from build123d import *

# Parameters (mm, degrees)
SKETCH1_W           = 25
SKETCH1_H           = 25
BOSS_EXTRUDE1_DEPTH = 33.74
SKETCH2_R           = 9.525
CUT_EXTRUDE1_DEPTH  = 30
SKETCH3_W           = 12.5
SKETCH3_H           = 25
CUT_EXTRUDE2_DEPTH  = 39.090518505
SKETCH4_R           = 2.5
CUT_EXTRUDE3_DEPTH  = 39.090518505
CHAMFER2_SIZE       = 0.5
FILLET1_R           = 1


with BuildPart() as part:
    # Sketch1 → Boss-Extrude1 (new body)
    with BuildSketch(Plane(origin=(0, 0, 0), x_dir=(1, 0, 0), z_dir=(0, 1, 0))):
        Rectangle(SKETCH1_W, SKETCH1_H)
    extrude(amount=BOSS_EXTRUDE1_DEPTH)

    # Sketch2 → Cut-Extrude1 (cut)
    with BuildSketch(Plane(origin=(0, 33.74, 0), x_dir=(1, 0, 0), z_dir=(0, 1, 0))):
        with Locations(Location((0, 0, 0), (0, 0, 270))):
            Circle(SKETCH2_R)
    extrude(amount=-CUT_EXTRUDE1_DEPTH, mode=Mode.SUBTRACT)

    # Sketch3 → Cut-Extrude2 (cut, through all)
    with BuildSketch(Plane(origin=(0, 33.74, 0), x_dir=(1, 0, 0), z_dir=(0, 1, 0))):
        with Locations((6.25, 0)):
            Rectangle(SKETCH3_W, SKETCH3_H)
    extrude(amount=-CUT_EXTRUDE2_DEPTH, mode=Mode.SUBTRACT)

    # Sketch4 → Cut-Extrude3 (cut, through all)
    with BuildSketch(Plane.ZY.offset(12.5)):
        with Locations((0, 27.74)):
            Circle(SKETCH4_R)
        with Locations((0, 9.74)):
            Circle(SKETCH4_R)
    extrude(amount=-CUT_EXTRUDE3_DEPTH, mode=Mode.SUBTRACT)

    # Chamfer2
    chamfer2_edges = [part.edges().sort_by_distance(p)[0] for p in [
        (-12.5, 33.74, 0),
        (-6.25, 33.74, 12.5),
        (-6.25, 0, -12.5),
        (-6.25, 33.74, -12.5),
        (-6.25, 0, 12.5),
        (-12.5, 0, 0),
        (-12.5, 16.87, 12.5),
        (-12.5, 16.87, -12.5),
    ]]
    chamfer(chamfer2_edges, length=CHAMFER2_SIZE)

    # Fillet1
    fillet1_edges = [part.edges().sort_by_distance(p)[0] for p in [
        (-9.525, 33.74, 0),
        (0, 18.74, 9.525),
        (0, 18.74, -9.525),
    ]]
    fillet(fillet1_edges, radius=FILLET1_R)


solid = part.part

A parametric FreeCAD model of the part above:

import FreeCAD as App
import Part
import Sketcher
Q = App.Units.Quantity


def edges_at(feature, points):
    """Names of the edges that pass closest to the given points."""
    edges = feature.Shape.Edges
    near = lambda p: min(range(len(edges)), key=lambda i: edges[i].distToShape(Part.Vertex(*p))[0])
    return sorted({f"Edge{near(p) + 1}" for p in points})


def add_polygon(sketch, points):
    """Adds a closed chain of lines whose ends are joined by coincident constraints."""
    first, n = sketch.GeometryCount, len(points)
    for a, b in zip(points, points[1:] + points[:1]):
        sketch.addGeometry(Part.LineSegment(App.Vector(*a, 0), App.Vector(*b, 0)), False)
    for i in range(n):
        sketch.addConstraint(Sketcher.Constraint("Coincident", first + i, 2, first + (i + 1) % n, 1))

doc = App.newDocument("Part")
body = doc.addObject("PartDesign::Body", "Body")

# Sketch on XZ plane
sketch1 = body.newObject("Sketcher::SketchObject", "Sketch")
sketch1.AttachmentSupport = (doc.getObject("XZ_Plane"), [""])
sketch1.MapMode = "FlatFace"
add_polygon(sketch1, [(-12, -12), (-12, 12), (12, 12), (12, -12)])  # lines 0-3
sketch1.addConstraint([
    Sketcher.Constraint("Vertical", 0),
    Sketcher.Constraint("Horizontal", 1),
    Sketcher.Constraint("Vertical", 2),
    Sketcher.Constraint("Horizontal", 3),
    Sketcher.Constraint("Symmetric", 0, 2, 2, 2, -1, 1),
    Sketcher.Constraint("Equal", 3, 0),
    Sketcher.Constraint("DistanceX", 1, 1, 1, 2, Q("25 mm")),
])
pad1 = body.newObject("PartDesign::Pad", "Pad")
pad1.Profile = sketch1
pad1.Length = 33.74
pad1.Reversed = True

# Sketch on XZ plane
sketch2 = body.newObject("Sketcher::SketchObject", "Sketch001")
sketch2.AttachmentSupport = (doc.getObject("XZ_Plane"), [""])
sketch2.MapMode = "FlatFace"
sketch2.AttachmentOffset = App.Placement(App.Vector(0, 0, -33.74), App.Rotation())
sketch2.addGeometry(Part.Circle(App.Vector(0, 0, 0), App.Vector(0, 0, 1), 10), False)
sketch2.addConstraint([
    Sketcher.Constraint("Coincident", 0, 3, -1, 1),
    Sketcher.Constraint("Diameter", 0, Q("19.05 mm")),
])
pocket1 = body.newObject("PartDesign::Pocket", "Pocket")
pocket1.Profile = sketch2
pocket1.Length = 30
pocket1.Reversed = True

# Sketch on XZ plane
sketch3 = body.newObject("Sketcher::SketchObject", "Sketch002")
sketch3.AttachmentSupport = (doc.getObject("XZ_Plane"), [""])
sketch3.MapMode = "FlatFace"
sketch3.AttachmentOffset = App.Placement(App.Vector(0, 0, -33.74), App.Rotation())
add_polygon(sketch3, [(0, -12), (0, 12), (12, 12), (12, -12)])  # lines 0-3
sketch3.addConstraint([
    Sketcher.Constraint("Vertical", 0),
    Sketcher.Constraint("Horizontal", 1),
    Sketcher.Constraint("Vertical", 2),
    Sketcher.Constraint("Horizontal", 3),
    Sketcher.Constraint("Symmetric", 0, 2, 3, 2, -1, 1),
    Sketcher.Constraint("DistanceY", 0, 1, 0, 2, Q("25 mm")),
    Sketcher.Constraint("DistanceX", 1, 1, 1, 2, Q("12.5 mm")),
])
pocket2 = body.newObject("PartDesign::Pocket", "Pocket001")
pocket2.Profile = sketch3
pocket2.Type = "ThroughAll"
pocket2.Reversed = True

# Sketch on YZ plane
sketch4 = body.newObject("Sketcher::SketchObject", "Sketch003")
sketch4.AttachmentSupport = (doc.getObject("YZ_Plane"), [""])
sketch4.MapMode = "FlatFace"
sketch4.AttachmentOffset = App.Placement(App.Vector(0, 0, -12.5), App.Rotation())
sketch4.addGeometry([
    Part.Circle(App.Vector(27.7, 0, 0), App.Vector(0, 0, 1), 2.5),
    Part.Circle(App.Vector(9.7, 0, 0), App.Vector(0, 0, 1), 2.5),
], False)
sketch4.addConstraint([
    Sketcher.Constraint("Equal", 0, 1),
    Sketcher.Constraint("PointOnObject", 0, 3, -1),
    Sketcher.Constraint("PointOnObject", 1, 3, -1),
    Sketcher.Constraint("Diameter", 0, Q("5 mm")),
    Sketcher.Constraint("DistanceX", 1, 3, 0, 3, Q("18 mm")),
    Sketcher.Constraint("DistanceX", -1, 1, 0, 3, Q("27.74 mm")),
])
pocket3 = body.newObject("PartDesign::Pocket", "Pocket002")
pocket3.Profile = sketch4
pocket3.Type = "ThroughAll"
pocket3.Reversed = True
doc.recompute()

chamfer = body.newObject("PartDesign::Chamfer", "Chamfer")
chamfer.Base = (pocket3, edges_at(pocket3, [
    (-12.5, 33.74, 0),
    (-6.25, 33.74, 12.5),
    (-6.25, 0, -12.5),
    (-6.25, 33.74, -12.5),
    (-6.25, 0, 12.5),
    (-12.5, 0, 0),
    (-12.5, 16.87, 12.5),
    (-12.5, 16.87, -12.5),
]))
chamfer.Size = 0.5
doc.recompute()

fillet = body.newObject("PartDesign::Fillet", "Fillet")
fillet.Base = (chamfer, edges_at(chamfer, [(-9.525, 33.74, 0), (0, 18.74, 9.525), (0, 18.74, -9.525)]))
fillet.Radius = 1

doc.recompute()
